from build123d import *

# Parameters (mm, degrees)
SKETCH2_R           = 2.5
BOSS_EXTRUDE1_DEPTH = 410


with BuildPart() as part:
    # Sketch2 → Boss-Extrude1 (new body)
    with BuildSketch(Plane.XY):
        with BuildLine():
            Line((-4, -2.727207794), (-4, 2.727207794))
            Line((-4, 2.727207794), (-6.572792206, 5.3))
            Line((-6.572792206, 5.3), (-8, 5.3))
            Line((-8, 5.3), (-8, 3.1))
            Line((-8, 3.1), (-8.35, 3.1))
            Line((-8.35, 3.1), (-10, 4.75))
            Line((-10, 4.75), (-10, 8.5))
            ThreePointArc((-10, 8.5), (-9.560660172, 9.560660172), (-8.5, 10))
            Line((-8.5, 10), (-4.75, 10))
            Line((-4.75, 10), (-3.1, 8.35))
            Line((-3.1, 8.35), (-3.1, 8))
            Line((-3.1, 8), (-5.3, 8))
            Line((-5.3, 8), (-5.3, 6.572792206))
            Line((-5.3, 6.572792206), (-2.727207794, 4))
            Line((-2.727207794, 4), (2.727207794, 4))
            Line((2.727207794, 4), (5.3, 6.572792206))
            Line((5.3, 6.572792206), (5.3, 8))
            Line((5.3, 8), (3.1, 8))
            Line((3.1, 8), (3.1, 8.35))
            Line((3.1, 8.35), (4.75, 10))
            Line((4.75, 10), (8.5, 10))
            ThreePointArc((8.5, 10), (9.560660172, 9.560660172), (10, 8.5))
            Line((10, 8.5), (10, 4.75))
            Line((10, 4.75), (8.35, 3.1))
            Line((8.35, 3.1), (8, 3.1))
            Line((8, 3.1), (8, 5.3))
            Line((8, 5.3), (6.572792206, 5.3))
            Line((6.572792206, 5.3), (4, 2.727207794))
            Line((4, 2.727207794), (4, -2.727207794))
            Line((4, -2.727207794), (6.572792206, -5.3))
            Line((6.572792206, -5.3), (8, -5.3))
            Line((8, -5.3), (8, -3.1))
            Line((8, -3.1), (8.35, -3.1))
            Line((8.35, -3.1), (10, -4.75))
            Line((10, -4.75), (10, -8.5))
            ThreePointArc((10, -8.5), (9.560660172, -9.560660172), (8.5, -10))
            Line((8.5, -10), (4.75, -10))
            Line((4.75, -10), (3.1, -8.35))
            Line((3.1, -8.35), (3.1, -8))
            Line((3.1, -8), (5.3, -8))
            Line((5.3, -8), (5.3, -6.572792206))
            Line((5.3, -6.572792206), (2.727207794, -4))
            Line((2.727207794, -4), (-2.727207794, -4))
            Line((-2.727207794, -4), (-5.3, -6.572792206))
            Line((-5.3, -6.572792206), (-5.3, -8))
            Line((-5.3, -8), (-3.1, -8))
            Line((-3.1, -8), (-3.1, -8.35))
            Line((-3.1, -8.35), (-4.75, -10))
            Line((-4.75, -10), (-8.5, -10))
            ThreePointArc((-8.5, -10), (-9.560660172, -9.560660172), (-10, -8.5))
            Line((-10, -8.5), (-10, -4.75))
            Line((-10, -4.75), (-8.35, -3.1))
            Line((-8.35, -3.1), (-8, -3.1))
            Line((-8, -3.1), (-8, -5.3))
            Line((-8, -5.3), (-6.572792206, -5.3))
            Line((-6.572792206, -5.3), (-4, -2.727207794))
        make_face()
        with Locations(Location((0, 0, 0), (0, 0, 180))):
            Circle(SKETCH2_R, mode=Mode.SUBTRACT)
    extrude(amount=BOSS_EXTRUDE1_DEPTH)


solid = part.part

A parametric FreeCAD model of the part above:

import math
import FreeCAD as App
import Part
import Sketcher

V = App.Vector

doc = App.newDocument("Part")
params = doc.addObject("Spreadsheet::Sheet", "Params")
for row, (alias, value) in enumerate([
    ("sketch1_diameter", "5 mm"),
    ("sketch1_radius", "1.5 mm"),
    ("sketch1_width", "2.2 mm"),
    ("sketch1_width2", "0.35 mm"),
    ("sketch1_width3", "3.75 mm"),
    ("pad1_length", "410 mm"),
], start=1):
    params.set(f"A{row}", alias)
    params.set(f"B{row}", "=" + value)
    params.setAlias(f"B{row}", alias)

body = doc.addObject("PartDesign::Body", "Body")

sketch1 = body.newObject("Sketcher::SketchObject", "Sketch")
sketch1.AttachmentSupport = (doc.getObject("XY_Plane"), [""])
sketch1.MapMode = "FlatFace"
sketch1.addGeometry([
    Part.LineSegment(V(-4, 2.73, 0), V(-4, -2.73, 0)),
    Part.LineSegment(V(-4, -2.73, 0), V(-6.57, -5.3, 0)),
    Part.LineSegment(V(-6.57, -5.3, 0), V(-8, -5.3, 0)),
    Part.LineSegment(V(-8, -5.3, 0), V(-8, -3.1, 0)),
    Part.LineSegment(V(-8, -3.1, 0), V(-8.35, -3.1, 0)),
    Part.LineSegment(V(-8.35, -3.1, 0), V(-10, -4.75, 0)),
    Part.LineSegment(V(-10, -4.75, 0), V(-10, -8.5, 0)),
    Part.ArcOfCircle(Part.Circle(V(-8.5, -8.5, 0), V(0, 0, 1), 1.5), math.radians(180), math.radians(270)),
    Part.LineSegment(V(-8.5, -10, 0), V(-4.75, -10, 0)),
    Part.LineSegment(V(-4.75, -10, 0), V(-3.1, -8.35, 0)),
    Part.LineSegment(V(-3.1, -8.35, 0), V(-3.1, -8, 0)),
    Part.LineSegment(V(-3.1, -8, 0), V(-5.3, -8, 0)),
    Part.LineSegment(V(-5.3, -8, 0), V(-5.3, -6.57, 0)),
    Part.LineSegment(V(-5.3, -6.57, 0), V(-2.73, -4, 0)),
    Part.LineSegment(V(-2.73, -4, 0), V(2.73, -4, 0)),
    Part.LineSegment(V(2.73, -4, 0), V(5.3, -6.57, 0)),
    Part.LineSegment(V(5.3, -6.57, 0), V(5.3, -8, 0)),
    Part.LineSegment(V(5.3, -8, 0), V(3.1, -8, 0)),
    Part.LineSegment(V(3.1, -8, 0), V(3.1, -8.35, 0)),
    Part.LineSegment(V(3.1, -8.35, 0), V(4.75, -10, 0)),
    Part.LineSegment(V(4.75, -10, 0), V(8.5, -10, 0)),
    Part.ArcOfCircle(Part.Circle(V(8.5, -8.5, 0), V(0, 0, 1), 1.5), math.radians(-90), math.radians(0)),
    Part.LineSegment(V(10, -8.5, 0), V(10, -4.75, 0)),
    Part.LineSegment(V(10, -4.75, 0), V(8.35, -3.1, 0)),
    Part.LineSegment(V(8.35, -3.1, 0), V(8, -3.1, 0)),
    Part.LineSegment(V(8, -3.1, 0), V(8, -5.3, 0)),
    Part.LineSegment(V(8, -5.3, 0), V(6.57, -5.3, 0)),
    Part.LineSegment(V(6.57, -5.3, 0), V(4, -2.73, 0)),
    Part.LineSegment(V(4, -2.73, 0), V(4, 2.73, 0)),
    Part.LineSegment(V(4, 2.73, 0), V(6.57, 5.3, 0)),
    Part.LineSegment(V(6.57, 5.3, 0), V(8, 5.3, 0)),
    Part.LineSegment(V(8, 5.3, 0), V(8, 3.1, 0)),
    Part.LineSegment(V(8, 3.1, 0), V(8.35, 3.1, 0)),
    Part.LineSegment(V(8.35, 3.1, 0), V(10, 4.75, 0)),
    Part.LineSegment(V(10, 4.75, 0), V(10, 8.5, 0)),
    Part.ArcOfCircle(Part.Circle(V(8.5, 8.5, 0), V(0, 0, 1), 1.5), math.radians(0), math.radians(90)),
    Part.LineSegment(V(8.5, 10, 0), V(4.75, 10, 0)),
    Part.LineSegment(V(4.75, 10, 0), V(3.1, 8.35, 0)),
    Part.LineSegment(V(3.1, 8.35, 0), V(3.1, 8, 0)),
    Part.LineSegment(V(3.1, 8, 0), V(5.3, 8, 0)),
    Part.LineSegment(V(5.3, 8, 0), V(5.3, 6.57, 0)),
    Part.LineSegment(V(5.3, 6.57, 0), V(2.73, 4, 0)),
    Part.LineSegment(V(2.73, 4, 0), V(-2.73, 4, 0)),
    Part.LineSegment(V(-2.73, 4, 0), V(-5.3, 6.57, 0)),
    Part.LineSegment(V(-5.3, 6.57, 0), V(-5.3, 8, 0)),
    Part.LineSegment(V(-5.3, 8, 0), V(-3.1, 8, 0)),
    Part.LineSegment(V(-3.1, 8, 0), V(-3.1, 8.35, 0)),
    Part.LineSegment(V(-3.1, 8.35, 0), V(-4.75, 10, 0)),
    Part.LineSegment(V(-4.75, 10, 0), V(-8.5, 10, 0)),
    Part.ArcOfCircle(Part.Circle(V(-8.5, 8.5, 0), V(0, 0, 1), 1.5), math.radians(90), math.radians(180)),
    Part.LineSegment(V(-10, 8.5, 0), V(-10, 4.75, 0)),
    Part.LineSegment(V(-10, 4.75, 0), V(-8.35, 3.1, 0)),
    Part.LineSegment(V(-8.35, 3.1, 0), V(-8, 3.1, 0)),
    Part.LineSegment(V(-8, 3.1, 0), V(-8, 5.3, 0)),
    Part.LineSegment(V(-8, 5.3, 0), V(-6.57, 5.3, 0)),
    Part.LineSegment(V(-6.57, 5.3, 0), V(-4, 2.73, 0)),
    Part.Circle(V(0, 0, 0), V(0, 0, 1), 2.5),
], False)
sketch1.addConstraint([
    Sketcher.Constraint("Coincident", 0, 2, 1, 1),
    Sketcher.Constraint("Coincident", 1, 2, 2, 1),
    Sketcher.Constraint("Coincident", 2, 2, 3, 1),
    Sketcher.Constraint("Coincident", 3, 2, 4, 1),
    Sketcher.Constraint("Coincident", 4, 2, 5, 1),
    Sketcher.Constraint("Coincident", 5, 2, 6, 1),
    Sketcher.Constraint("Tangent", 6, 2, 7, 1),
    Sketcher.Constraint("Tangent", 7, 2, 8, 1),
    Sketcher.Constraint("Coincident", 8, 2, 9, 1),
    Sketcher.Constraint("Coincident", 9, 2, 10, 1),
    Sketcher.Constraint("Coincident", 10, 2, 11, 1),
    Sketcher.Constraint("Coincident", 11, 2, 12, 1),
    Sketcher.Constraint("Coincident", 12, 2, 13, 1),
    Sketcher.Constraint("Coincident", 13, 2, 14, 1),
    Sketcher.Constraint("Coincident", 14, 2, 15, 1),
    Sketcher.Constraint("Coincident", 15, 2, 16, 1),
    Sketcher.Constraint("Coincident", 16, 2, 17, 1),
    Sketcher.Constraint("Coincident", 17, 2, 18, 1),
    Sketcher.Constraint("Coincident", 18, 2, 19, 1),
    Sketcher.Constraint("Coincident", 19, 2, 20, 1),
    Sketcher.Constraint("Tangent", 20, 2, 21, 1),
    Sketcher.Constraint("Tangent", 21, 2, 22, 1),
    Sketcher.Constraint("Coincident", 22, 2, 23, 1),
    Sketcher.Constraint("Coincident", 23, 2, 24, 1),
    Sketcher.Constraint("Coincident", 24, 2, 25, 1),
    Sketcher.Constraint("Coincident", 25, 2, 26, 1),
    Sketcher.Constraint("Coincident", 26, 2, 27, 1),
    Sketcher.Constraint("Coincident", 27, 2, 28, 1),
    Sketcher.Constraint("Coincident", 28, 2, 29, 1),
    Sketcher.Constraint("Coincident", 29, 2, 30, 1),
    Sketcher.Constraint("Coincident", 30, 2, 31, 1),
    Sketcher.Constraint("Coincident", 31, 2, 32, 1),
    Sketcher.Constraint("Coincident", 32, 2, 33, 1),
    Sketcher.Constraint("Coincident", 33, 2, 34, 1),
    Sketcher.Constraint("Tangent", 34, 2, 35, 1),
    Sketcher.Constraint("Tangent", 35, 2, 36, 1),
    Sketcher.Constraint("Coincident", 36, 2, 37, 1),
    Sketcher.Constraint("Coincident", 37, 2, 38, 1),
    Sketcher.Constraint("Coincident", 38, 2, 39, 1),
    Sketcher.Constraint("Coincident", 39, 2, 40, 1),
    Sketcher.Constraint("Coincident", 40, 2, 41, 1),
    Sketcher.Constraint("Coincident", 41, 2, 42, 1),
    Sketcher.Constraint("Coincident", 42, 2, 43, 1),
    Sketcher.Constraint("Coincident", 43, 2, 44, 1),
    Sketcher.Constraint("Coincident", 44, 2, 45, 1),
    Sketcher.Constraint("Coincident", 45, 2, 46, 1),
    Sketcher.Constraint("Coincident", 46, 2, 47, 1),
    Sketcher.Constraint("Coincident", 47, 2, 48, 1),
    Sketcher.Constraint("Tangent", 48, 2, 49, 1),
    Sketcher.Constraint("Tangent", 49, 2, 50, 1),
    Sketcher.Constraint("Coincident", 50, 2, 51, 1),
    Sketcher.Constraint("Coincident", 51, 2, 52, 1),
    Sketcher.Constraint("Coincident", 52, 2, 53, 1),
    Sketcher.Constraint("Coincident", 53, 2, 54, 1),
    Sketcher.Constraint("Coincident", 54, 2, 55, 1),
    Sketcher.Constraint("Coincident", 55, 2, 0, 1),
    Sketcher.Constraint("Vertical", 0),
    Sketcher.Constraint("Horizontal", 2),
    Sketcher.Constraint("Vertical", 3),
    Sketcher.Constraint("Horizontal", 4),
    Sketcher.Constraint("Vertical", 6),
    Sketcher.Constraint("Horizontal", 8),
    Sketcher.Constraint("Vertical", 10),
    Sketcher.Constraint("Horizontal", 11),
    Sketcher.Constraint("Vertical", 12),
    Sketcher.Constraint("Horizontal", 14),
    Sketcher.Constraint("Vertical", 16),
    Sketcher.Constraint("Horizontal", 17),
    Sketcher.Constraint("Vertical", 18),
    Sketcher.Constraint("Horizontal", 20),
    Sketcher.Constraint("Vertical", 22),
    Sketcher.Constraint("Horizontal", 24),
    Sketcher.Constraint("Vertical", 25),
    Sketcher.Constraint("Horizontal", 26),
    Sketcher.Constraint("Vertical", 28),
    Sketcher.Constraint("Horizontal", 30),
    Sketcher.Constraint("Vertical", 31),
    Sketcher.Constraint("Horizontal", 32),
    Sketcher.Constraint("Vertical", 34),
    Sketcher.Constraint("Horizontal", 36),
    Sketcher.Constraint("Vertical", 38),
    Sketcher.Constraint("Horizontal", 39),
    Sketcher.Constraint("Vertical", 40),
    Sketcher.Constraint("Horizontal", 42),
    Sketcher.Constraint("Vertical", 44),
    Sketcher.Constraint("Horizontal", 45),
    Sketcher.Constraint("Vertical", 46),
    Sketcher.Constraint("Horizontal", 48),
    Sketcher.Constraint("Vertical", 50),
    Sketcher.Constraint("Horizontal", 52),
    Sketcher.Constraint("Vertical", 53),
    Sketcher.Constraint("Horizontal", 54),
    Sketcher.Constraint("Coincident", 56, 3, -1, 1),
    Sketcher.Constraint("Equal", 7, 21),
    Sketcher.Constraint("Equal", 21, 35),
    Sketcher.Constraint("Equal", 35, 49),
    Sketcher.Constraint("Symmetric", 7, 3, 35, 3, -1, 1),
    Sketcher.Constraint("Symmetric", 21, 3, 49, 3, -1, 1),
    Sketcher.Constraint("Symmetric", 0, 2, 28, 2, -1, 1),
    Sketcher.Constraint("Symmetric", 1, 2, 29, 2, -1, 1),
    Sketcher.Constraint("Symmetric", 3, 2, 31, 2, -1, 1),
    Sketcher.Constraint("Symmetric", 9, 2, 37, 2, -1, 1),
    Sketcher.Constraint("Symmetric", 11, 2, 39, 2, -1, 1),
    Sketcher.Constraint("Symmetric", 13, 2, 41, 2, -1, 1),
    Sketcher.Constraint("Symmetric", 15, 2, 43, 2, -1, 1),
    Sketcher.Constraint("Symmetric", 17, 2, 45, 2, -1, 1),
    Sketcher.Constraint("Symmetric", 23, 2, 51, 2, -1, 1),
    Sketcher.Constraint("Symmetric", 25, 2, 53, 2, -1, 1),
    Sketcher.Constraint("Symmetric", 7, 3, 21, 3, -2),
    Sketcher.Constraint("Symmetric", 12, 2, 15, 2, -2),
    Sketcher.Constraint("Symmetric", 10, 2, 17, 2, -2),
    Sketcher.Constraint("Symmetric", 4, 2, 23, 2, -2),
    Sketcher.Constraint("Symmetric", 2, 2, 25, 2, -2),
    Sketcher.Constraint("Parallel", 1, 5),
    Sketcher.Constraint("Parallel", 5, 9),
    Sketcher.Constraint("Parallel", 9, 13),
    Sketcher.Constraint("Perpendicular", 13, 15),
    Sketcher.Constraint("Parallel", 15, 19),
    Sketcher.Constraint("Parallel", 19, 23),
    Sketcher.Constraint("Parallel", 23, 27),
    Sketcher.Constraint("Parallel", 29, 33),
    Sketcher.Constraint("Parallel", 33, 37),
    Sketcher.Constraint("Parallel", 37, 41),
    Sketcher.Constraint("Perpendicular", 41, 43),
    Sketcher.Constraint("Parallel", 43, 47),
    Sketcher.Constraint("Parallel", 47, 51),
    Sketcher.Constraint("Parallel", 51, 55),
    Sketcher.Constraint("Horizontal", 9, 2, 18, 2),
    Sketcher.Constraint("Horizontal", 5, 2, 22, 2),
    Sketcher.Constraint("Horizontal", 0, 2, 27, 2),
    Sketcher.Constraint("Horizontal", 37, 2, 46, 2),
    Sketcher.Constraint("Horizontal", 33, 2, 50, 2),
    Sketcher.Constraint("Horizontal", 28, 2, 55, 2),
    Sketcher.Constraint("Equal", 42, 0),
    Sketcher.Constraint("Equal", 45, 3),
    Sketcher.Constraint("Equal", 48, 6),
    Sketcher.Constraint("Equal", 52, 10),
    Sketcher.Constraint("Equal", 54, 12),
    Sketcher.Constraint("Equal", 5, 9),
    Sketcher.Constraint("Equal", 1, 13),
    Sketcher.Constraint("Diameter", 56, 5.0),
    Sketcher.Constraint("Radius", 7, 1.5),
    Sketcher.Constraint("DistanceX", 11, 2, 11, 1, 2.2),
    Sketcher.Constraint("DistanceX", 0, 2, -1, 1, 4.0),
    Sketcher.Constraint("DistanceX", 2, 2, -1, 1, 8.0),
    Sketcher.Constraint("DistanceX", 5, 2, -1, 1, 10.0),
    Sketcher.Constraint("DistanceX", 4, 2, 4, 1, 0.35),
    Sketcher.Constraint("DistanceX", 8, 1, 8, 2, 3.75),
    Sketcher.Constraint("DistanceX", 2, 2, 2, 1, 1.427208),
])
sketch1.setExpression("Constraints[140]", "Params.sketch1_diameter")
sketch1.setExpression("Constraints[141]", "Params.sketch1_radius")
sketch1.setExpression("Constraints[142]", "Params.sketch1_width")
sketch1.setExpression("Constraints[146]", "Params.sketch1_width2")
sketch1.setExpression("Constraints[147]", "Params.sketch1_width3")
pad1 = body.newObject("PartDesign::Pad", "Pad")
pad1.Profile = sketch1
pad1.setExpression("Length", "Params.pad1_length")

doc.recompute()
